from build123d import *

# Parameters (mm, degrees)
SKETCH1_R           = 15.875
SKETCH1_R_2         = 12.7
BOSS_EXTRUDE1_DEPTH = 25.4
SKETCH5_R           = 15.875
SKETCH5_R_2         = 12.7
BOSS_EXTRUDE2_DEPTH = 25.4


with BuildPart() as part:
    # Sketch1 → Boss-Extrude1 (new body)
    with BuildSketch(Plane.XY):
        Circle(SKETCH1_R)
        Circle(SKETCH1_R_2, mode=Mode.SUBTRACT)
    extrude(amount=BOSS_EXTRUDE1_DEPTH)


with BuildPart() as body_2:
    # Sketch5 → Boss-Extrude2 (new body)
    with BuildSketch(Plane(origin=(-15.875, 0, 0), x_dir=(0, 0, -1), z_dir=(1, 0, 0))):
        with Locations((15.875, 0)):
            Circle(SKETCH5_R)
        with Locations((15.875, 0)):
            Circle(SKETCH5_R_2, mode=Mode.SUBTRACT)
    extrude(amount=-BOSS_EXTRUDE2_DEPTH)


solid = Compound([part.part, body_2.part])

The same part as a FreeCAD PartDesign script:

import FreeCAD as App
import Part
import Sketcher

V = App.Vector
Q = App.Units.Quantity

doc = App.newDocument("Part")
body = doc.addObject("PartDesign::Body", "Body")

# Sketch on XY plane
sketch1 = doc.addObject("Sketcher::SketchObject", "Sketch")
body.addObject(sketch1)
sketch1.AttachmentSupport = (doc.XY_Plane, [""])
sketch1.MapMode = "FlatFace"
sketch1.addGeometry(Part.Circle(V(0, 0, 0), V(0, 0, 1), 15.875), False)
sketch1.addGeometry(Part.Circle(V(0, 0, 0), V(0, 0, 1), 12.7), False)
sketch1.addConstraint(Sketcher.Constraint("Coincident", 0, 3, -1, 1))
sketch1.addConstraint(Sketcher.Constraint("Coincident", 1, 3, -1, 1))
sketch1.addConstraint(Sketcher.Constraint("Diameter", 1, Q("1 in")))
sketch1.addConstraint(Sketcher.Constraint("Diameter", 0, Q("1.25 in")))
pad1 = doc.addObject("PartDesign::Pad", "Pad")
body.addObject(pad1)
pad1.Profile = sketch1
pad1.Length = Q("1 in")
body2 = doc.addObject("PartDesign::Body", "Body001")

# Sketch on YZ plane
sketch2 = doc.addObject("Sketcher::SketchObject", "Sketch001")
body2.addObject(sketch2)
sketch2.AttachmentSupport = (doc.getObject("YZ_Plane001"), [""])
sketch2.MapMode = "FlatFace"
sketch2.AttachmentOffset = App.Placement(V(0, 0, -0.625 * 25.4), App.Rotation())
sketch2.addGeometry(Part.Circle(V(0, -15.875, 0), V(0, 0, 1), 15.875), False)
sketch2.addGeometry(Part.Circle(V(0, -15.875, 0), V(0, 0, 1), 12.7), False)
sketch2.addConstraint(Sketcher.Constraint("Coincident", 1, 3, 0, 3))
sketch2.addConstraint(Sketcher.Constraint("PointOnObject", 0, 3, -2))
sketch2.addConstraint(Sketcher.Constraint("Diameter", 1, Q("1 in")))
sketch2.addConstraint(Sketcher.Constraint("Diameter", 0, Q("1.25 in")))
sketch2.addConstraint(Sketcher.Constraint("DistanceY", 0, 3, -1, 1, Q("0.625 in")))
pad2 = doc.addObject("PartDesign::Pad", "Pad001")
body2.addObject(pad2)
pad2.Profile = sketch2
pad2.Length = Q("1 in")
pad2.Reversed = True

doc.recompute()
